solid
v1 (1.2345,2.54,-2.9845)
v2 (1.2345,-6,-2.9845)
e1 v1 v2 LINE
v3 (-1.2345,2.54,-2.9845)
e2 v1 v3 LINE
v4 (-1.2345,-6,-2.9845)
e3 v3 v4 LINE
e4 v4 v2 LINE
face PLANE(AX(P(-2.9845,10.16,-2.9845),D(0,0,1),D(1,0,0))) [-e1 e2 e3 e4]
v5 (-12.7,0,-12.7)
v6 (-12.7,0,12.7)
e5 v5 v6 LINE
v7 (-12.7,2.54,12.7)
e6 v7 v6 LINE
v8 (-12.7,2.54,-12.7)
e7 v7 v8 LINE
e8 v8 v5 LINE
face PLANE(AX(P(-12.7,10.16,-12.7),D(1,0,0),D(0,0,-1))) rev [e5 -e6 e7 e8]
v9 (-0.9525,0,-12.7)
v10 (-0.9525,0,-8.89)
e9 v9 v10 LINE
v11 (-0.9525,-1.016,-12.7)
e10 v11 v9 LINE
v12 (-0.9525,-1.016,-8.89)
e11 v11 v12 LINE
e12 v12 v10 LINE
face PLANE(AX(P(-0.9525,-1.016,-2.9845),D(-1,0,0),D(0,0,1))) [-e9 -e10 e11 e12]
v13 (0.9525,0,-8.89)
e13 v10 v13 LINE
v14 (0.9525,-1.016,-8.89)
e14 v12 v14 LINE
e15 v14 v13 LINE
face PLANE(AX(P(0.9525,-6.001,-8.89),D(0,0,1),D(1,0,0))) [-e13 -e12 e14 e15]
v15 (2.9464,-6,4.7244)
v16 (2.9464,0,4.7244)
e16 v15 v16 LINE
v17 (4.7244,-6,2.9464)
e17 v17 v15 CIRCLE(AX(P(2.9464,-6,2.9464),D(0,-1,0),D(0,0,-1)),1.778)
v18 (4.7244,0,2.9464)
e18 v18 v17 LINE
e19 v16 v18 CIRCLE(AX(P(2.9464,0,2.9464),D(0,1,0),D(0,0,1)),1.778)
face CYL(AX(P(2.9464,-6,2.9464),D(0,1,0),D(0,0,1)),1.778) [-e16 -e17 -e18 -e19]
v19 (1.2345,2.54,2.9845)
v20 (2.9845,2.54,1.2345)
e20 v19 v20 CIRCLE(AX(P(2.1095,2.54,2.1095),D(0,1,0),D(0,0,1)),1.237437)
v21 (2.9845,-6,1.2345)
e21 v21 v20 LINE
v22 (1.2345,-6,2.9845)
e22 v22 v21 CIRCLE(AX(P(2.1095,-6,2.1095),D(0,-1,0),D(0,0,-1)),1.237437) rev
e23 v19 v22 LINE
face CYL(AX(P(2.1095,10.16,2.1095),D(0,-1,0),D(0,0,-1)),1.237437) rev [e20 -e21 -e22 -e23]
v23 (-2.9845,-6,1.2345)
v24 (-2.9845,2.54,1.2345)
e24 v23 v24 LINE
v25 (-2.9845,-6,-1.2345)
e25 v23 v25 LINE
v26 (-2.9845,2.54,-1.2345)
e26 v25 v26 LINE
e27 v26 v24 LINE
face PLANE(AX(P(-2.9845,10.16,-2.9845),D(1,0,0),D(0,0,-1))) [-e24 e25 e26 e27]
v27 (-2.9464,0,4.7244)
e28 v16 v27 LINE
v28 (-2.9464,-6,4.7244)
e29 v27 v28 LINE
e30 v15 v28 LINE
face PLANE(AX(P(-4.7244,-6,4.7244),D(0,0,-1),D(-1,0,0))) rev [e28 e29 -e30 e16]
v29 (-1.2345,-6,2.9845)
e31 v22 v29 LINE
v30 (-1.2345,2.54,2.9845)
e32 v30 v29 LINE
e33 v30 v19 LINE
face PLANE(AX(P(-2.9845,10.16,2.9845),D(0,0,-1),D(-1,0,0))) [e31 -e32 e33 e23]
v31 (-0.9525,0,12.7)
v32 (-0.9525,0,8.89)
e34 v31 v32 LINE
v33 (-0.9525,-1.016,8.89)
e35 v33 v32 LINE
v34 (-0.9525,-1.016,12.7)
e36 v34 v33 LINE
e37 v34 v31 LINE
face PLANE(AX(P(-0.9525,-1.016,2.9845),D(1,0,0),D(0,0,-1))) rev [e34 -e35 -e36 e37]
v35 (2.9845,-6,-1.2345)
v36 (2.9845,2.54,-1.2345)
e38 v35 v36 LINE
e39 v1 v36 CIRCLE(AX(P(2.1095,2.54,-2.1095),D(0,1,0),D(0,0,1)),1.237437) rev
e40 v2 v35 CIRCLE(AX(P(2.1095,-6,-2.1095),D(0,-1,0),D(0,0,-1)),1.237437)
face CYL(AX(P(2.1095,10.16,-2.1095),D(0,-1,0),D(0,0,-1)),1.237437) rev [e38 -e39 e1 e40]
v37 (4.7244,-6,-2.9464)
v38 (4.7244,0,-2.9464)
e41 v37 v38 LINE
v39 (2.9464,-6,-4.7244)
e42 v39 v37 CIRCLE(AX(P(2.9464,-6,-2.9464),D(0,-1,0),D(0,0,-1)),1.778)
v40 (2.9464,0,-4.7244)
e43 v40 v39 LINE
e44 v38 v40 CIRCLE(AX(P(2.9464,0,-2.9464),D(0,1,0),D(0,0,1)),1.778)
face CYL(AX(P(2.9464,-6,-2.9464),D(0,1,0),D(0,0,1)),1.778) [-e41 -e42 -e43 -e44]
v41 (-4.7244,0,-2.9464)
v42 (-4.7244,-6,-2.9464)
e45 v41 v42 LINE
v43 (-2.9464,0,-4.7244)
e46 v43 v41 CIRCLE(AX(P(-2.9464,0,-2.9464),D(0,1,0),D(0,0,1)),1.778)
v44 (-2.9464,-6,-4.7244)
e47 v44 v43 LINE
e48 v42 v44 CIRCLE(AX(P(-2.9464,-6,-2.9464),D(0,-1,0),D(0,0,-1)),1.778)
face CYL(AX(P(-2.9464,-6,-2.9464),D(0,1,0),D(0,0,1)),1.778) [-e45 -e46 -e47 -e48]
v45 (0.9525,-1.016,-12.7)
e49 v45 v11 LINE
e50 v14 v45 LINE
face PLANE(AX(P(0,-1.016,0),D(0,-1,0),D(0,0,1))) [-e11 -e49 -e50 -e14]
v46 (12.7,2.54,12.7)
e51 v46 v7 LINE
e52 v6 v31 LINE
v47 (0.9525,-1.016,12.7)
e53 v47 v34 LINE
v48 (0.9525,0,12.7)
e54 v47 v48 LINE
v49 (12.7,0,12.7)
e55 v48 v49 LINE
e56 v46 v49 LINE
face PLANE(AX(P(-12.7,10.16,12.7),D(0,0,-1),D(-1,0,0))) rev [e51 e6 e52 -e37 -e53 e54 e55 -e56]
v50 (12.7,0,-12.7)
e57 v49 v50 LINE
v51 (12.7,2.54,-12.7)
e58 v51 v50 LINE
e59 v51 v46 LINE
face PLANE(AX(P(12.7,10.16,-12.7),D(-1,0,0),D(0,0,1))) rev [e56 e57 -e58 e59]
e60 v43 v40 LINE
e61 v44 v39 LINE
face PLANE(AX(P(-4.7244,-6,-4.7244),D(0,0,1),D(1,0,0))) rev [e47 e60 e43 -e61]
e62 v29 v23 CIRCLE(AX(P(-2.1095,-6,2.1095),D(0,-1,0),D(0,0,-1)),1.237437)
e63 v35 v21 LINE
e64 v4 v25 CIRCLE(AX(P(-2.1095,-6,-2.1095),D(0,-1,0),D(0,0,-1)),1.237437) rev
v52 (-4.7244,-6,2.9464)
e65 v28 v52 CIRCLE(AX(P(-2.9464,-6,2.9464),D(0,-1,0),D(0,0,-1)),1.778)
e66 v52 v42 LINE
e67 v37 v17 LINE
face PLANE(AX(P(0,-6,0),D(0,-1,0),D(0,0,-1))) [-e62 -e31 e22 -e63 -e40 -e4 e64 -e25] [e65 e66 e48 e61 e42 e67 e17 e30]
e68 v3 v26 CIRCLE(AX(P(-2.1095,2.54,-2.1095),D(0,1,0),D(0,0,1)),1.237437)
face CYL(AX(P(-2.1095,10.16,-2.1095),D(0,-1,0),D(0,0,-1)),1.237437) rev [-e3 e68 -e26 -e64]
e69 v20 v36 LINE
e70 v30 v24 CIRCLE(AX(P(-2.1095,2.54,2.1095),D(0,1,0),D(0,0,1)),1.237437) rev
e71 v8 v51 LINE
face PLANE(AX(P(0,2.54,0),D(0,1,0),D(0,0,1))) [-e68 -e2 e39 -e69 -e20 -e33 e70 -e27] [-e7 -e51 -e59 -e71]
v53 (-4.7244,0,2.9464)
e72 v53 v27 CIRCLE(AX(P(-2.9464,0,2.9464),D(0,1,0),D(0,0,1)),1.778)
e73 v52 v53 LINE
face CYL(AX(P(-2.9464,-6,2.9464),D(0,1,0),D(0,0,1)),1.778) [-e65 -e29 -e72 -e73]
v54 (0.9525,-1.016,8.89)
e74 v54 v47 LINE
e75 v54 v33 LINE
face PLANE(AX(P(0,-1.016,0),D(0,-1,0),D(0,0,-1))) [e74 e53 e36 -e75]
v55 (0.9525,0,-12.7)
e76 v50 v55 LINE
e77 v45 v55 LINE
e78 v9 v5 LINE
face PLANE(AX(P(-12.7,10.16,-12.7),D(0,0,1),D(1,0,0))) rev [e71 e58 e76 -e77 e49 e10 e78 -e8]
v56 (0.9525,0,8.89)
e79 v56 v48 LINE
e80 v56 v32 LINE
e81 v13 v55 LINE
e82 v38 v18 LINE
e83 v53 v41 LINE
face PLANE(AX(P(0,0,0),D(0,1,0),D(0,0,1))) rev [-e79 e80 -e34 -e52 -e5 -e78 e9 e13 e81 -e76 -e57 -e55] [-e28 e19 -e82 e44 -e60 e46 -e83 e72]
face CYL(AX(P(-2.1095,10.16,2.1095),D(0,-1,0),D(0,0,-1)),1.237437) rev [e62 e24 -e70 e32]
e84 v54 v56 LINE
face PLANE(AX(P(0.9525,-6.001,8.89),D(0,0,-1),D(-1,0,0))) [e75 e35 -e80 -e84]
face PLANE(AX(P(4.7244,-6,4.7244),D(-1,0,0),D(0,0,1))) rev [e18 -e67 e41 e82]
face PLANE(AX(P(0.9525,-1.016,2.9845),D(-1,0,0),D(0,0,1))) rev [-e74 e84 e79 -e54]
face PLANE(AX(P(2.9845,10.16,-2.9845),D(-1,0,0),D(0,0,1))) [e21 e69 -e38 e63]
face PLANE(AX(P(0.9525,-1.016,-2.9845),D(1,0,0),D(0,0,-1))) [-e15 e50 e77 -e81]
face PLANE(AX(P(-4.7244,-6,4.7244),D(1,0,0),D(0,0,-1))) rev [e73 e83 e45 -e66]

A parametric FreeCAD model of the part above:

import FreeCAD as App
import Part
import Sketcher

V = App.Vector
Q = App.Units.Quantity


def edges_at(feature, points):
    """Names of the edges that pass closest to the given points."""
    edges = feature.Shape.Edges
    near = lambda p: min(range(len(edges)), key=lambda i: edges[i].distToShape(Part.Vertex(*p))[0])
    return sorted({f"Edge{near(p) + 1}" for p in points})

doc = App.newDocument("Part")
body = doc.addObject("PartDesign::Body", "Body")

sketch1 = doc.addObject("Sketcher::SketchObject", "Sketch")
body.addObject(sketch1)
sketch1.AttachmentSupport = (doc.XZ_Plane, [""])
sketch1.MapMode = "FlatFace"
sketch1.addGeometry(Part.LineSegment(V(-13, -13, 0), V(-13, 13, 0)), False)
sketch1.addGeometry(Part.LineSegment(V(-13, 13, 0), V(13, 13, 0)), False)
sketch1.addGeometry(Part.LineSegment(V(13, 13, 0), V(13, -13, 0)), False)
sketch1.addGeometry(Part.LineSegment(V(13, -13, 0), V(-13, -13, 0)), False)
sketch1.addGeometry(Part.LineSegment(V(3, 3, 0), V(-3, 3, 0)), False)
sketch1.addGeometry(Part.LineSegment(V(-3, 3, 0), V(-3, -3, 0)), False)
sketch1.addGeometry(Part.LineSegment(V(-3, -3, 0), V(3, -3, 0)), False)
sketch1.addGeometry(Part.LineSegment(V(3, -3, 0), V(3, 3, 0)), False)
sketch1.addConstraint(Sketcher.Constraint("Coincident", 0, 2, 1, 1))
sketch1.addConstraint(Sketcher.Constraint("Coincident", 1, 2, 2, 1))
sketch1.addConstraint(Sketcher.Constraint("Coincident", 2, 2, 3, 1))
sketch1.addConstraint(Sketcher.Constraint("Coincident", 3, 2, 0, 1))
sketch1.addConstraint(Sketcher.Constraint("Coincident", 4, 2, 5, 1))
sketch1.addConstraint(Sketcher.Constraint("Coincident", 5, 2, 6, 1))
sketch1.addConstraint(Sketcher.Constraint("Coincident", 6, 2, 7, 1))
sketch1.addConstraint(Sketcher.Constraint("Coincident", 7, 2, 4, 1))
sketch1.addConstraint(Sketcher.Constraint("Vertical", 0))
sketch1.addConstraint(Sketcher.Constraint("Horizontal", 1))
sketch1.addConstraint(Sketcher.Constraint("Vertical", 2))
sketch1.addConstraint(Sketcher.Constraint("Horizontal", 3))
sketch1.addConstraint(Sketcher.Constraint("Horizontal", 4))
sketch1.addConstraint(Sketcher.Constraint("Vertical", 5))
sketch1.addConstraint(Sketcher.Constraint("Horizontal", 6))
sketch1.addConstraint(Sketcher.Constraint("Vertical", 7))
sketch1.addConstraint(Sketcher.Constraint("Symmetric", 0, 2, 2, 2, -1, 1))
sketch1.addConstraint(Sketcher.Constraint("Symmetric", 4, 2, 6, 2, -1, 1))
sketch1.addConstraint(Sketcher.Constraint("Equal", 3, 0))
sketch1.addConstraint(Sketcher.Constraint("Equal", 6, 5))
sketch1.addConstraint(Sketcher.Constraint("DistanceX", 1, 1, 1, 2, Q("1 in")))
sketch1.addConstraint(Sketcher.Constraint("DistanceX", 4, 2, 4, 1, Q("0.235 in")))
pad1 = doc.addObject("PartDesign::Pad", "Pad")
body.addObject(pad1)
pad1.Profile = sketch1
pad1.Length = Q("0.4 in")
pad1.Reversed = True

sketch2 = doc.addObject("Sketcher::SketchObject", "Sketch001")
body.addObject(sketch2)
sketch2.AttachmentSupport = (doc.XZ_Plane, [""])
sketch2.MapMode = "FlatFace"
sketch2.addGeometry(Part.LineSegment(V(-1, 12.7, 0), V(-1, 3, 0)), False)
sketch2.addGeometry(Part.LineSegment(V(-1, 3, 0), V(1, 3, 0)), False)
sketch2.addGeometry(Part.LineSegment(V(1, 3, 0), V(1, 12.7, 0)), False)
sketch2.addGeometry(Part.LineSegment(V(1, 12.7, 0), V(-1, 12.7, 0)), False)
sketch2.addConstraint(Sketcher.Constraint("Coincident", 0, 2, 1, 1))
sketch2.addConstraint(Sketcher.Constraint("Coincident", 1, 2, 2, 1))
sketch2.addConstraint(Sketcher.Constraint("Coincident", 2, 2, 3, 1))
sketch2.addConstraint(Sketcher.Constraint("Coincident", 3, 2, 0, 1))
sketch2.addConstraint(Sketcher.Constraint("Vertical", 0))
sketch2.addConstraint(Sketcher.Constraint("Horizontal", 1))
sketch2.addConstraint(Sketcher.Constraint("Vertical", 2))
sketch2.addConstraint(Sketcher.Constraint("Horizontal", 3))
sketch2.addConstraint(Sketcher.Constraint("DistanceY", -1, 1, 2, 2, Q("0.5 in")))
sketch2.addConstraint(Sketcher.Constraint("DistanceX", 1, 1, 1, 2, Q("0.075 in")))
sketch2.addConstraint(Sketcher.Constraint("DistanceY", 0, 2, 0, 1, Q("0.3825 in")))
sketch2.addConstraint(Sketcher.Constraint("DistanceX", 0, 2, -1, 1, Q("0.0375 in")))
pad2 = doc.addObject("PartDesign::Pad", "Pad001")
body.addObject(pad2)
pad2.Profile = sketch2
pad2.Length = Q("0.04 in")
doc.recompute()

mirrored = doc.addObject("PartDesign::Mirrored", "Mirrored")
body.addObject(mirrored)
mirrored.Originals = [pad2]
mirrored.MirrorPlane = (doc.XY_Plane, [""])
body.Tip = mirrored

sketch3 = doc.addObject("Sketcher::SketchObject", "Sketch002")
body.addObject(sketch3)
sketch3.AttachmentSupport = (doc.XZ_Plane, [""])
sketch3.MapMode = "FlatFace"
sketch3.addGeometry(Part.LineSegment(V(-5, 5, 0), V(-5, -5, 0)), False)
sketch3.addGeometry(Part.LineSegment(V(-5, -5, 0), V(5, -5, 0)), False)
sketch3.addGeometry(Part.LineSegment(V(5, -5, 0), V(5, 5, 0)), False)
sketch3.addGeometry(Part.LineSegment(V(5, 5, 0), V(-5, 5, 0)), False)
sketch3.addGeometry(Part.LineSegment(V(3, -3, 0), V(-3, -3, 0)), False)
sketch3.addGeometry(Part.LineSegment(V(-3, -3, 0), V(-3, 3, 0)), False)
sketch3.addGeometry(Part.LineSegment(V(-3, 3, 0), V(3, 3, 0)), False)
sketch3.addGeometry(Part.LineSegment(V(3, 3, 0), V(3, -3, 0)), False)
sketch3.addConstraint(Sketcher.Constraint("Coincident", 0, 2, 1, 1))
sketch3.addConstraint(Sketcher.Constraint("Coincident", 1, 2, 2, 1))
sketch3.addConstraint(Sketcher.Constraint("Coincident", 2, 2, 3, 1))
sketch3.addConstraint(Sketcher.Constraint("Coincident", 3, 2, 0, 1))
sketch3.addConstraint(Sketcher.Constraint("Coincident", 4, 2, 5, 1))
sketch3.addConstraint(Sketcher.Constraint("Coincident", 5, 2, 6, 1))
sketch3.addConstraint(Sketcher.Constraint("Coincident", 6, 2, 7, 1))
sketch3.addConstraint(Sketcher.Constraint("Coincident", 7, 2, 4, 1))
sketch3.addConstraint(Sketcher.Constraint("Vertical", 0))
sketch3.addConstraint(Sketcher.Constraint("Horizontal", 1))
sketch3.addConstraint(Sketcher.Constraint("Vertical", 2))
sketch3.addConstraint(Sketcher.Constraint("Horizontal", 3))
sketch3.addConstraint(Sketcher.Constraint("Horizontal", 4))
sketch3.addConstraint(Sketcher.Constraint("Vertical", 5))
sketch3.addConstraint(Sketcher.Constraint("Horizontal", 6))
sketch3.addConstraint(Sketcher.Constraint("Vertical", 7))
sketch3.addConstraint(Sketcher.Constraint("Symmetric", 0, 2, 2, 2, -1, 1))
sketch3.addConstraint(Sketcher.Constraint("Symmetric", 4, 2, 6, 2, -1, 1))
sketch3.addConstraint(Sketcher.Constraint("Equal", 3, 0))
sketch3.addConstraint(Sketcher.Constraint("Equal", 6, 5))
sketch3.addConstraint(Sketcher.Constraint("DistanceX", 1, 1, 1, 2, Q("0.372 in")))
sketch3.addConstraint(Sketcher.Constraint("DistanceX", 4, 2, 4, 1, Q("0.235 in")))
pad3 = doc.addObject("PartDesign::Pad", "Pad002")
body.addObject(pad3)
pad3.Profile = sketch3
pad3.Length = 6

sketch4 = doc.addObject("Sketcher::SketchObject", "Sketch003")
body.addObject(sketch4)
sketch4.AttachmentSupport = (doc.XZ_Plane, [""])
sketch4.MapMode = "FlatFace"
sketch4.addGeometry(Part.LineSegment(V(-1, 8.9, 0), V(-1, 4.7, 0)), False)
sketch4.addGeometry(Part.LineSegment(V(-1, 4.7, 0), V(1, 4.7, 0)), False)
sketch4.addGeometry(Part.LineSegment(V(1, 4.7, 0), V(1, 8.9, 0)), False)
sketch4.addGeometry(Part.LineSegment(V(1, 8.9, 0), V(-1, 8.9, 0)), False)
sketch4.addConstraint(Sketcher.Constraint("Coincident", 0, 2, 1, 1))
sketch4.addConstraint(Sketcher.Constraint("Coincident", 1, 2, 2, 1))
sketch4.addConstraint(Sketcher.Constraint("Coincident", 2, 2, 3, 1))
sketch4.addConstraint(Sketcher.Constraint("Coincident", 3, 2, 0, 1))
sketch4.addConstraint(Sketcher.Constraint("Vertical", 0))
sketch4.addConstraint(Sketcher.Constraint("Horizontal", 1))
sketch4.addConstraint(Sketcher.Constraint("Vertical", 2))
sketch4.addConstraint(Sketcher.Constraint("Horizontal", 3))
sketch4.addConstraint(Sketcher.Constraint("DistanceX", 1, 1, 1, 2, Q("0.075 in")))
sketch4.addConstraint(Sketcher.Constraint("DistanceY", 0, 2, 0, 1, Q("0.164 in")))
sketch4.addConstraint(Sketcher.Constraint("DistanceY", -1, 1, 2, 2, Q("0.35 in")))
sketch4.addConstraint(Sketcher.Constraint("DistanceX", 0, 2, -1, 1, Q("0.0375 in")))
pocket1 = doc.addObject("PartDesign::Pocket", "Pocket")
body.addObject(pocket1)
pocket1.Profile = sketch4
pocket1.Type = "UpToFirst"
pocket1.Reversed = True

sketch5 = doc.addObject("Sketcher::SketchObject", "Sketch004")
body.addObject(sketch5)
sketch5.AttachmentSupport = (doc.XZ_Plane, [""])
sketch5.MapMode = "FlatFace"
sketch5.addGeometry(Part.LineSegment(V(-1, -4.7, 0), V(-1, -8.9, 0)), False)
sketch5.addGeometry(Part.LineSegment(V(-1, -8.9, 0), V(1, -8.9, 0)), False)
sketch5.addGeometry(Part.LineSegment(V(1, -8.9, 0), V(1, -4.7, 0)), False)
sketch5.addGeometry(Part.LineSegment(V(1, -4.7, 0), V(-1, -4.7, 0)), False)
sketch5.addConstraint(Sketcher.Constraint("Coincident", 0, 2, 1, 1))
sketch5.addConstraint(Sketcher.Constraint("Coincident", 1, 2, 2, 1))
sketch5.addConstraint(Sketcher.Constraint("Coincident", 2, 2, 3, 1))
sketch5.addConstraint(Sketcher.Constraint("Coincident", 3, 2, 0, 1))
sketch5.addConstraint(Sketcher.Constraint("Vertical", 0))
sketch5.addConstraint(Sketcher.Constraint("Horizontal", 1))
sketch5.addConstraint(Sketcher.Constraint("Vertical", 2))
sketch5.addConstraint(Sketcher.Constraint("Horizontal", 3))
sketch5.addConstraint(Sketcher.Constraint("DistanceX", 1, 1, 1, 2, Q("0.075 in")))
sketch5.addConstraint(Sketcher.Constraint("DistanceY", 0, 2, 0, 1, Q("0.164 in")))
sketch5.addConstraint(Sketcher.Constraint("DistanceY", 0, 2, -1, 1, Q("0.35 in")))
sketch5.addConstraint(Sketcher.Constraint("DistanceX", 0, 2, -1, 1, Q("0.0375 in")))
pocket2 = doc.addObject("PartDesign::Pocket", "Pocket001")
body.addObject(pocket2)
pocket2.Profile = sketch5
pocket2.Type = "UpToFirst"
pocket2.Reversed = True

sketch6 = doc.addObject("Sketcher::SketchObject", "Sketch005")
body.addObject(sketch6)
sketch6.AttachmentSupport = (doc.XZ_Plane, [""])
sketch6.MapMode = "FlatFace"
sketch6.AttachmentOffset = App.Placement(V(0, 0, 6), App.Rotation())
sketch6.addGeometry(Part.Circle(V(-2.1, 2.1, 0), V(0, 0, 1), 1.2), False)
sketch6.addConstraint(Sketcher.Constraint("Diameter", 0, 2.474874))
sketch6.addConstraint(Sketcher.Constraint("DistanceX", 0, 3, -1, 1, 2.1095))
sketch6.addConstraint(Sketcher.Constraint("DistanceY", -1, 1, 0, 3, 2.1095))
pocket3 = doc.addObject("PartDesign::Pocket", "Pocket002")
body.addObject(pocket3)
pocket3.Profile = sketch6
pocket3.Type = "ThroughAll"
doc.recompute()

mirrored2 = doc.addObject("PartDesign::Mirrored", "Mirrored001")
body.addObject(mirrored2)
mirrored2.Originals = [pocket3]
mirrored2.MirrorPlane = (doc.YZ_Plane, [""])
body.Tip = mirrored2
doc.recompute()

mirrored3 = doc.addObject("PartDesign::Mirrored", "Mirrored002")
body.addObject(mirrored3)
mirrored3.Originals = [pocket3]
mirrored3.MirrorPlane = (doc.XY_Plane, [""])
body.Tip = mirrored3

sketch7 = doc.addObject("Sketcher::SketchObject", "Sketch006")
body.addObject(sketch7)
sketch7.AttachmentSupport = (doc.XZ_Plane, [""])
sketch7.MapMode = "FlatFace"
sketch7.AttachmentOffset = App.Placement(V(0, 0, 6), App.Rotation())
sketch7.addGeometry(Part.Circle(V(2.1, -2.1, 0), V(0, 0, 1), 1.2), False)
sketch7.addConstraint(Sketcher.Constraint("Diameter", 0, 2.474874))
sketch7.addConstraint(Sketcher.Constraint("DistanceX", -1, 1, 0, 3, 2.1095))
sketch7.addConstraint(Sketcher.Constraint("DistanceY", 0, 3, -1, 1, 2.1095))
pocket4 = doc.addObject("PartDesign::Pocket", "Pocket003")
body.addObject(pocket4)
pocket4.Profile = sketch7
pocket4.Type = "ThroughAll"

sketch8 = doc.addObject("Sketcher::SketchObject", "Sketch007")
body.addObject(sketch8)
sketch8.AttachmentSupport = (doc.XZ_Plane, [""])
sketch8.MapMode = "FlatFace"
sketch8.AttachmentOffset = App.Placement(V(0, 0, -0.4 * 25.4), App.Rotation())
sketch8.addGeometry(Part.LineSegment(V(-13, -13, 0), V(-13, 13, 0)), False)
sketch8.addGeometry(Part.LineSegment(V(-13, 13, 0), V(13, 13, 0)), False)
sketch8.addGeometry(Part.LineSegment(V(13, 13, 0), V(13, -13, 0)), False)
sketch8.addGeometry(Part.LineSegment(V(13, -13, 0), V(-13, -13, 0)), False)
sketch8.addConstraint(Sketcher.Constraint("Coincident", 0, 2, 1, 1))
sketch8.addConstraint(Sketcher.Constraint("Coincident", 1, 2, 2, 1))
sketch8.addConstraint(Sketcher.Constraint("Coincident", 2, 2, 3, 1))
sketch8.addConstraint(Sketcher.Constraint("Coincident", 3, 2, 0, 1))
sketch8.addConstraint(Sketcher.Constraint("Vertical", 0))
sketch8.addConstraint(Sketcher.Constraint("Horizontal", 1))
sketch8.addConstraint(Sketcher.Constraint("Vertical", 2))
sketch8.addConstraint(Sketcher.Constraint("Horizontal", 3))
sketch8.addConstraint(Sketcher.Constraint("Symmetric", 0, 2, 2, 2, -1, 1))
sketch8.addConstraint(Sketcher.Constraint("Equal", 3, 0))
sketch8.addConstraint(Sketcher.Constraint("DistanceX", 1, 1, 1, 2, Q("1 in")))
pocket5 = doc.addObject("PartDesign::Pocket", "Pocket004")
body.addObject(pocket5)
pocket5.Profile = sketch8
pocket5.Length = Q("0.3 in")
pocket5.Reversed = True
doc.recompute()

fillet = doc.addObject("PartDesign::Fillet", "Fillet")
body.addObject(fillet)
fillet.Base = (pocket5, edges_at(pocket5, [
    (4.724, -3, 4.724),
    (-4.724, -3, 4.724),
    (-4.724, -3, -4.724),
    (4.724, -3, -4.724),
]))
fillet.Radius = Q("0.07 in")

doc.recompute()
